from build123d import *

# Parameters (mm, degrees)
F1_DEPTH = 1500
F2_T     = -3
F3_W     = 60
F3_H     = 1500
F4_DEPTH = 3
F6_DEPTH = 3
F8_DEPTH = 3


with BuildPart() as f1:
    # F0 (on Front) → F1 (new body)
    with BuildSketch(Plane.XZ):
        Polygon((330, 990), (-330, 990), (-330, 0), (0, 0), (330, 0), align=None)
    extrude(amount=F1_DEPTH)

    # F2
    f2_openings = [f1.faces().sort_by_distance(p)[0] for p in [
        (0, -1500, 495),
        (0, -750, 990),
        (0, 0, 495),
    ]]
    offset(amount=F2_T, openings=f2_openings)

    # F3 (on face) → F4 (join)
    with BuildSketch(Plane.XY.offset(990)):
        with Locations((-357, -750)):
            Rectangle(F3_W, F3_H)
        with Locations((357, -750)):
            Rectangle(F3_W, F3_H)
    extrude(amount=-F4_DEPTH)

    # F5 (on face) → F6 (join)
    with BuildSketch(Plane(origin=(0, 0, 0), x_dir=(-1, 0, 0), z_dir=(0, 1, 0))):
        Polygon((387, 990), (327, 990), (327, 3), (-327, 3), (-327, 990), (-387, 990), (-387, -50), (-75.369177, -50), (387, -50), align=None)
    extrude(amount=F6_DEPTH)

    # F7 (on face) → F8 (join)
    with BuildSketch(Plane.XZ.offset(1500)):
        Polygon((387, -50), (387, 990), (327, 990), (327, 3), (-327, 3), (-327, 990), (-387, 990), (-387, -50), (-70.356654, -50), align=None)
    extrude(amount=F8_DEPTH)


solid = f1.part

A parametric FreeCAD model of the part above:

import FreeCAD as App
import Part
import Sketcher

V = App.Vector
Q = App.Units.Quantity


def faces_at(feature, points):
    """Names of the faces that lie closest to the given points."""
    faces = feature.Shape.Faces
    near = lambda p: min(range(len(faces)), key=lambda i: faces[i].distToShape(Part.Vertex(*p))[0])
    return sorted({f"Face{near(p) + 1}" for p in points})

doc = App.newDocument("Part")
params = doc.addObject("Spreadsheet::Sheet", "Params")
for row, (alias, value) in enumerate([
    ("sketch1_width", "660 mm"),
    ("sketch1_height", "990 mm"),
    ("pad1_length", "1500 mm"),
    ("thickness_wall", "3 mm"),
    ("sketch2_width", "60 mm"),
    ("sketch2_height", "1500 mm"),
    ("pad2_length", "3 mm"),
    ("sketch3_width", "60 mm"),
    ("sketch3_width2", "654 mm"),
    ("sketch3_height", "987 mm"),
    ("sketch3_height2", "1040 mm"),
    ("pad3_length", "3 mm"),
    ("sketch4_width", "60 mm"),
    ("sketch4_width2", "654 mm"),
    ("sketch4_height", "1040 mm"),
    ("sketch4_height2", "987 mm"),
    ("pad4_length", "3 mm"),
], start=1):
    params.set(f"A{row}", alias)
    params.set(f"B{row}", "=" + value)
    params.setAlias(f"B{row}", alias)

body = doc.addObject("PartDesign::Body", "Body")

# Sketch on XZ plane
sketch1 = body.newObject("Sketcher::SketchObject", "Sketch")
sketch1.AttachmentSupport = (doc.getObject("XZ_Plane"), [""])
sketch1.MapMode = "FlatFace"
sketch1.addGeometry(Part.LineSegment(V(330, 990, 0), V(-330, 990, 0)), False)
sketch1.addGeometry(Part.LineSegment(V(-330, 990, 0), V(-330, 0, 0)), False)
sketch1.addGeometry(Part.LineSegment(V(-330, 0, 0), V(330, 0, 0)), False)
sketch1.addGeometry(Part.LineSegment(V(330, 0, 0), V(330, 990, 0)), False)
sketch1.addConstraint(Sketcher.Constraint("Coincident", 0, 2, 1, 1))
sketch1.addConstraint(Sketcher.Constraint("Coincident", 1, 2, 2, 1))
sketch1.addConstraint(Sketcher.Constraint("Coincident", 2, 2, 3, 1))
sketch1.addConstraint(Sketcher.Constraint("Coincident", 3, 2, 0, 1))
sketch1.addConstraint(Sketcher.Constraint("Horizontal", 0))
sketch1.addConstraint(Sketcher.Constraint("Vertical", 1))
sketch1.addConstraint(Sketcher.Constraint("Horizontal", 2))
sketch1.addConstraint(Sketcher.Constraint("Vertical", 3))
sketch1.addConstraint(Sketcher.Constraint("Symmetric", 1, 2, 2, 2, -1, 1))
sketch1.addConstraint(Sketcher.Constraint("DistanceX", 0, 2, 0, 1, Q("660 mm")))
sketch1.addConstraint(Sketcher.Constraint("DistanceY", 1, 2, 1, 1, Q("990 mm")))
sketch1.setExpression("Constraints[9]", "Params.sketch1_width")
sketch1.setExpression("Constraints[10]", "Params.sketch1_height")
pad1 = body.newObject("PartDesign::Pad", "Pad")
pad1.Profile = sketch1
pad1.setExpression("Length", "Params.pad1_length")
doc.recompute()

thickness = body.newObject("PartDesign::Thickness", "Thickness")
thickness.Base = (pad1, faces_at(pad1, [(0, -1500, 495), (0, -750, 990), (0, 0, 495)]))
thickness.setExpression("Value", "Params.thickness_wall")
thickness.Reversed = True
thickness.Join = "Arc"

# Sketch on XY plane
sketch2 = body.newObject("Sketcher::SketchObject", "Sketch001")
sketch2.AttachmentSupport = (doc.getObject("XY_Plane"), [""])
sketch2.MapMode = "FlatFace"
sketch2.AttachmentOffset = App.Placement(V(0, 0, 990), App.Rotation())
sketch2.addGeometry(Part.LineSegment(V(-387, 0, 0), V(-387, -1500, 0)), False)
sketch2.addGeometry(Part.LineSegment(V(-387, -1500, 0), V(-327, -1500, 0)), False)
sketch2.addGeometry(Part.LineSegment(V(-327, -1500, 0), V(-327, 0, 0)), False)
sketch2.addGeometry(Part.LineSegment(V(-327, 0, 0), V(-387, 0, 0)), False)
sketch2.addGeometry(Part.LineSegment(V(327, 0, 0), V(327, -1500, 0)), False)
sketch2.addGeometry(Part.LineSegment(V(327, -1500, 0), V(387, -1500, 0)), False)
sketch2.addGeometry(Part.LineSegment(V(387, -1500, 0), V(387, 0, 0)), False)
sketch2.addGeometry(Part.LineSegment(V(387, 0, 0), V(327, 0, 0)), False)
sketch2.addConstraint(Sketcher.Constraint("Coincident", 0, 2, 1, 1))
sketch2.addConstraint(Sketcher.Constraint("Coincident", 1, 2, 2, 1))
sketch2.addConstraint(Sketcher.Constraint("Coincident", 2, 2, 3, 1))
sketch2.addConstraint(Sketcher.Constraint("Coincident", 3, 2, 0, 1))
sketch2.addConstraint(Sketcher.Constraint("Coincident", 4, 2, 5, 1))
sketch2.addConstraint(Sketcher.Constraint("Coincident", 5, 2, 6, 1))
sketch2.addConstraint(Sketcher.Constraint("Coincident", 6, 2, 7, 1))
sketch2.addConstraint(Sketcher.Constraint("Coincident", 7, 2, 4, 1))
sketch2.addConstraint(Sketcher.Constraint("Vertical", 0))
sketch2.addConstraint(Sketcher.Constraint("Horizontal", 1))
sketch2.addConstraint(Sketcher.Constraint("Vertical", 2))
sketch2.addConstraint(Sketcher.Constraint("Horizontal", 3))
sketch2.addConstraint(Sketcher.Constraint("Vertical", 4))
sketch2.addConstraint(Sketcher.Constraint("Horizontal", 5))
sketch2.addConstraint(Sketcher.Constraint("Vertical", 6))
sketch2.addConstraint(Sketcher.Constraint("Horizontal", 7))
sketch2.addConstraint(Sketcher.Constraint("Symmetric", 3, 2, 6, 2, -1, 1))
sketch2.addConstraint(Sketcher.Constraint("Symmetric", 1, 2, 4, 2, -2))
sketch2.addConstraint(Sketcher.Constraint("PointOnObject", 2, 2, -1))
sketch2.addConstraint(Sketcher.Constraint("DistanceX", 1, 1, 1, 2, Q("60 mm")))
sketch2.addConstraint(Sketcher.Constraint("DistanceY", 0, 2, 0, 1, Q("1500 mm")))
sketch2.addConstraint(Sketcher.Constraint("DistanceX", 0, 2, -1, 1, Q("387 mm")))
sketch2.setExpression("Constraints[19]", "Params.sketch2_width")
sketch2.setExpression("Constraints[20]", "Params.sketch2_height")
pad2 = body.newObject("PartDesign::Pad", "Pad001")
pad2.Profile = sketch2
pad2.setExpression("Length", "Params.pad2_length")
pad2.Reversed = True

# Sketch on XZ plane
sketch3 = body.newObject("Sketcher::SketchObject", "Sketch002")
sketch3.AttachmentSupport = (doc.getObject("XZ_Plane"), [""])
sketch3.MapMode = "FlatFace"
sketch3.addGeometry(Part.LineSegment(V(-387, 990, 0), V(-327, 990, 0)), False)
sketch3.addGeometry(Part.LineSegment(V(-327, 990, 0), V(-327, 3, 0)), False)
sketch3.addGeometry(Part.LineSegment(V(-327, 3, 0), V(327, 3, 0)), False)
sketch3.addGeometry(Part.LineSegment(V(327, 3, 0), V(327, 990, 0)), False)
sketch3.addGeometry(Part.LineSegment(V(327, 990, 0), V(387, 990, 0)), False)
sketch3.addGeometry(Part.LineSegment(V(387, 990, 0), V(387, -50, 0)), False)
sketch3.addGeometry(Part.LineSegment(V(387, -50, 0), V(-387, -50, 0)), False)
sketch3.addGeometry(Part.LineSegment(V(-387, -50, 0), V(-387, 990, 0)), False)
sketch3.addConstraint(Sketcher.Constraint("Coincident", 0, 2, 1, 1))
sketch3.addConstraint(Sketcher.Constraint("Coincident", 1, 2, 2, 1))
sketch3.addConstraint(Sketcher.Constraint("Coincident", 2, 2, 3, 1))
sketch3.addConstraint(Sketcher.Constraint("Coincident", 3, 2, 4, 1))
sketch3.addConstraint(Sketcher.Constraint("Coincident", 4, 2, 5, 1))
sketch3.addConstraint(Sketcher.Constraint("Coincident", 5, 2, 6, 1))
sketch3.addConstraint(Sketcher.Constraint("Coincident", 6, 2, 7, 1))
sketch3.addConstraint(Sketcher.Constraint("Coincident", 7, 2, 0, 1))
sketch3.addConstraint(Sketcher.Constraint("Horizontal", 0))
sketch3.addConstraint(Sketcher.Constraint("Vertical", 1))
sketch3.addConstraint(Sketcher.Constraint("Horizontal", 2))
sketch3.addConstraint(Sketcher.Constraint("Vertical", 3))
sketch3.addConstraint(Sketcher.Constraint("Horizontal", 4))
sketch3.addConstraint(Sketcher.Constraint("Vertical", 5))
sketch3.addConstraint(Sketcher.Constraint("Horizontal", 6))
sketch3.addConstraint(Sketcher.Constraint("Vertical", 7))
sketch3.addConstraint(Sketcher.Constraint("Symmetric", 0, 2, 3, 2, -2))
sketch3.addConstraint(Sketcher.Constraint("Equal", 0, 4))
sketch3.addConstraint(Sketcher.Constraint("DistanceX", 0, 1, 0, 2, Q("60 mm")))
sketch3.addConstraint(Sketcher.Constraint("DistanceX", 2, 1, 2, 2, Q("654 mm")))
sketch3.addConstraint(Sketcher.Constraint("DistanceY", 1, 2, 1, 1, Q("987 mm")))
sketch3.addConstraint(Sketcher.Constraint("DistanceY", 5, 2, 5, 1, Q("1040 mm")))
sketch3.addConstraint(Sketcher.Constraint("DistanceY", -1, 1, 0, 2, Q("990 mm")))
sketch3.setExpression("Constraints[18]", "Params.sketch3_width")
sketch3.setExpression("Constraints[19]", "Params.sketch3_width2")
sketch3.setExpression("Constraints[20]", "Params.sketch3_height")
sketch3.setExpression("Constraints[21]", "Params.sketch3_height2")
pad3 = body.newObject("PartDesign::Pad", "Pad002")
pad3.Profile = sketch3
pad3.setExpression("Length", "Params.pad3_length")
pad3.Reversed = True

# Sketch on XZ plane
sketch4 = body.newObject("Sketcher::SketchObject", "Sketch003")
sketch4.AttachmentSupport = (doc.getObject("XZ_Plane"), [""])
sketch4.MapMode = "FlatFace"
sketch4.AttachmentOffset = App.Placement(V(0, 0, 1500), App.Rotation())
sketch4.addGeometry(Part.LineSegment(V(387, -50, 0), V(387, 990, 0)), False)
sketch4.addGeometry(Part.LineSegment(V(387, 990, 0), V(327, 990, 0)), False)
sketch4.addGeometry(Part.LineSegment(V(327, 990, 0), V(327, 3, 0)), False)
sketch4.addGeometry(Part.LineSegment(V(327, 3, 0), V(-327, 3, 0)), False)
sketch4.addGeometry(Part.LineSegment(V(-327, 3, 0), V(-327, 990, 0)), False)
sketch4.addGeometry(Part.LineSegment(V(-327, 990, 0), V(-387, 990, 0)), False)
sketch4.addGeometry(Part.LineSegment(V(-387, 990, 0), V(-387, -50, 0)), False)
sketch4.addGeometry(Part.LineSegment(V(-387, -50, 0), V(387, -50, 0)), False)
sketch4.addConstraint(Sketcher.Constraint("Coincident", 0, 2, 1, 1))
sketch4.addConstraint(Sketcher.Constraint("Coincident", 1, 2, 2, 1))
sketch4.addConstraint(Sketcher.Constraint("Coincident", 2, 2, 3, 1))
sketch4.addConstraint(Sketcher.Constraint("Coincident", 3, 2, 4, 1))
sketch4.addConstraint(Sketcher.Constraint("Coincident", 4, 2, 5, 1))
sketch4.addConstraint(Sketcher.Constraint("Coincident", 5, 2, 6, 1))
sketch4.addConstraint(Sketcher.Constraint("Coincident", 6, 2, 7, 1))
sketch4.addConstraint(Sketcher.Constraint("Coincident", 7, 2, 0, 1))
sketch4.addConstraint(Sketcher.Constraint("Vertical", 0))
sketch4.addConstraint(Sketcher.Constraint("Horizontal", 1))
sketch4.addConstraint(Sketcher.Constraint("Vertical", 2))
sketch4.addConstraint(Sketcher.Constraint("Horizontal", 3))
sketch4.addConstraint(Sketcher.Constraint("Vertical", 4))
sketch4.addConstraint(Sketcher.Constraint("Horizontal", 5))
sketch4.addConstraint(Sketcher.Constraint("Vertical", 6))
sketch4.addConstraint(Sketcher.Constraint("Horizontal", 7))
sketch4.addConstraint(Sketcher.Constraint("Symmetric", 1, 2, 4, 2, -2))
sketch4.addConstraint(Sketcher.Constraint("Equal", 1, 5))
sketch4.addConstraint(Sketcher.Constraint("DistanceX", 1, 2, 1, 1, Q("60 mm")))
sketch4.addConstraint(Sketcher.Constraint("DistanceX", 3, 2, 3, 1, Q("654 mm")))
sketch4.addConstraint(Sketcher.Constraint("DistanceY", 0, 1, 0, 2, Q("1040 mm")))
sketch4.addConstraint(Sketcher.Constraint("DistanceY", 2, 2, 2, 1, Q("987 mm")))
sketch4.addConstraint(Sketcher.Constraint("DistanceY", -1, 1, 0, 2, Q("990 mm")))
sketch4.setExpression("Constraints[18]", "Params.sketch4_width")
sketch4.setExpression("Constraints[19]", "Params.sketch4_width2")
sketch4.setExpression("Constraints[20]", "Params.sketch4_height")
sketch4.setExpression("Constraints[21]", "Params.sketch4_height2")
pad4 = body.newObject("PartDesign::Pad", "Pad003")
pad4.Profile = sketch4
pad4.setExpression("Length", "Params.pad4_length")

doc.recompute()
